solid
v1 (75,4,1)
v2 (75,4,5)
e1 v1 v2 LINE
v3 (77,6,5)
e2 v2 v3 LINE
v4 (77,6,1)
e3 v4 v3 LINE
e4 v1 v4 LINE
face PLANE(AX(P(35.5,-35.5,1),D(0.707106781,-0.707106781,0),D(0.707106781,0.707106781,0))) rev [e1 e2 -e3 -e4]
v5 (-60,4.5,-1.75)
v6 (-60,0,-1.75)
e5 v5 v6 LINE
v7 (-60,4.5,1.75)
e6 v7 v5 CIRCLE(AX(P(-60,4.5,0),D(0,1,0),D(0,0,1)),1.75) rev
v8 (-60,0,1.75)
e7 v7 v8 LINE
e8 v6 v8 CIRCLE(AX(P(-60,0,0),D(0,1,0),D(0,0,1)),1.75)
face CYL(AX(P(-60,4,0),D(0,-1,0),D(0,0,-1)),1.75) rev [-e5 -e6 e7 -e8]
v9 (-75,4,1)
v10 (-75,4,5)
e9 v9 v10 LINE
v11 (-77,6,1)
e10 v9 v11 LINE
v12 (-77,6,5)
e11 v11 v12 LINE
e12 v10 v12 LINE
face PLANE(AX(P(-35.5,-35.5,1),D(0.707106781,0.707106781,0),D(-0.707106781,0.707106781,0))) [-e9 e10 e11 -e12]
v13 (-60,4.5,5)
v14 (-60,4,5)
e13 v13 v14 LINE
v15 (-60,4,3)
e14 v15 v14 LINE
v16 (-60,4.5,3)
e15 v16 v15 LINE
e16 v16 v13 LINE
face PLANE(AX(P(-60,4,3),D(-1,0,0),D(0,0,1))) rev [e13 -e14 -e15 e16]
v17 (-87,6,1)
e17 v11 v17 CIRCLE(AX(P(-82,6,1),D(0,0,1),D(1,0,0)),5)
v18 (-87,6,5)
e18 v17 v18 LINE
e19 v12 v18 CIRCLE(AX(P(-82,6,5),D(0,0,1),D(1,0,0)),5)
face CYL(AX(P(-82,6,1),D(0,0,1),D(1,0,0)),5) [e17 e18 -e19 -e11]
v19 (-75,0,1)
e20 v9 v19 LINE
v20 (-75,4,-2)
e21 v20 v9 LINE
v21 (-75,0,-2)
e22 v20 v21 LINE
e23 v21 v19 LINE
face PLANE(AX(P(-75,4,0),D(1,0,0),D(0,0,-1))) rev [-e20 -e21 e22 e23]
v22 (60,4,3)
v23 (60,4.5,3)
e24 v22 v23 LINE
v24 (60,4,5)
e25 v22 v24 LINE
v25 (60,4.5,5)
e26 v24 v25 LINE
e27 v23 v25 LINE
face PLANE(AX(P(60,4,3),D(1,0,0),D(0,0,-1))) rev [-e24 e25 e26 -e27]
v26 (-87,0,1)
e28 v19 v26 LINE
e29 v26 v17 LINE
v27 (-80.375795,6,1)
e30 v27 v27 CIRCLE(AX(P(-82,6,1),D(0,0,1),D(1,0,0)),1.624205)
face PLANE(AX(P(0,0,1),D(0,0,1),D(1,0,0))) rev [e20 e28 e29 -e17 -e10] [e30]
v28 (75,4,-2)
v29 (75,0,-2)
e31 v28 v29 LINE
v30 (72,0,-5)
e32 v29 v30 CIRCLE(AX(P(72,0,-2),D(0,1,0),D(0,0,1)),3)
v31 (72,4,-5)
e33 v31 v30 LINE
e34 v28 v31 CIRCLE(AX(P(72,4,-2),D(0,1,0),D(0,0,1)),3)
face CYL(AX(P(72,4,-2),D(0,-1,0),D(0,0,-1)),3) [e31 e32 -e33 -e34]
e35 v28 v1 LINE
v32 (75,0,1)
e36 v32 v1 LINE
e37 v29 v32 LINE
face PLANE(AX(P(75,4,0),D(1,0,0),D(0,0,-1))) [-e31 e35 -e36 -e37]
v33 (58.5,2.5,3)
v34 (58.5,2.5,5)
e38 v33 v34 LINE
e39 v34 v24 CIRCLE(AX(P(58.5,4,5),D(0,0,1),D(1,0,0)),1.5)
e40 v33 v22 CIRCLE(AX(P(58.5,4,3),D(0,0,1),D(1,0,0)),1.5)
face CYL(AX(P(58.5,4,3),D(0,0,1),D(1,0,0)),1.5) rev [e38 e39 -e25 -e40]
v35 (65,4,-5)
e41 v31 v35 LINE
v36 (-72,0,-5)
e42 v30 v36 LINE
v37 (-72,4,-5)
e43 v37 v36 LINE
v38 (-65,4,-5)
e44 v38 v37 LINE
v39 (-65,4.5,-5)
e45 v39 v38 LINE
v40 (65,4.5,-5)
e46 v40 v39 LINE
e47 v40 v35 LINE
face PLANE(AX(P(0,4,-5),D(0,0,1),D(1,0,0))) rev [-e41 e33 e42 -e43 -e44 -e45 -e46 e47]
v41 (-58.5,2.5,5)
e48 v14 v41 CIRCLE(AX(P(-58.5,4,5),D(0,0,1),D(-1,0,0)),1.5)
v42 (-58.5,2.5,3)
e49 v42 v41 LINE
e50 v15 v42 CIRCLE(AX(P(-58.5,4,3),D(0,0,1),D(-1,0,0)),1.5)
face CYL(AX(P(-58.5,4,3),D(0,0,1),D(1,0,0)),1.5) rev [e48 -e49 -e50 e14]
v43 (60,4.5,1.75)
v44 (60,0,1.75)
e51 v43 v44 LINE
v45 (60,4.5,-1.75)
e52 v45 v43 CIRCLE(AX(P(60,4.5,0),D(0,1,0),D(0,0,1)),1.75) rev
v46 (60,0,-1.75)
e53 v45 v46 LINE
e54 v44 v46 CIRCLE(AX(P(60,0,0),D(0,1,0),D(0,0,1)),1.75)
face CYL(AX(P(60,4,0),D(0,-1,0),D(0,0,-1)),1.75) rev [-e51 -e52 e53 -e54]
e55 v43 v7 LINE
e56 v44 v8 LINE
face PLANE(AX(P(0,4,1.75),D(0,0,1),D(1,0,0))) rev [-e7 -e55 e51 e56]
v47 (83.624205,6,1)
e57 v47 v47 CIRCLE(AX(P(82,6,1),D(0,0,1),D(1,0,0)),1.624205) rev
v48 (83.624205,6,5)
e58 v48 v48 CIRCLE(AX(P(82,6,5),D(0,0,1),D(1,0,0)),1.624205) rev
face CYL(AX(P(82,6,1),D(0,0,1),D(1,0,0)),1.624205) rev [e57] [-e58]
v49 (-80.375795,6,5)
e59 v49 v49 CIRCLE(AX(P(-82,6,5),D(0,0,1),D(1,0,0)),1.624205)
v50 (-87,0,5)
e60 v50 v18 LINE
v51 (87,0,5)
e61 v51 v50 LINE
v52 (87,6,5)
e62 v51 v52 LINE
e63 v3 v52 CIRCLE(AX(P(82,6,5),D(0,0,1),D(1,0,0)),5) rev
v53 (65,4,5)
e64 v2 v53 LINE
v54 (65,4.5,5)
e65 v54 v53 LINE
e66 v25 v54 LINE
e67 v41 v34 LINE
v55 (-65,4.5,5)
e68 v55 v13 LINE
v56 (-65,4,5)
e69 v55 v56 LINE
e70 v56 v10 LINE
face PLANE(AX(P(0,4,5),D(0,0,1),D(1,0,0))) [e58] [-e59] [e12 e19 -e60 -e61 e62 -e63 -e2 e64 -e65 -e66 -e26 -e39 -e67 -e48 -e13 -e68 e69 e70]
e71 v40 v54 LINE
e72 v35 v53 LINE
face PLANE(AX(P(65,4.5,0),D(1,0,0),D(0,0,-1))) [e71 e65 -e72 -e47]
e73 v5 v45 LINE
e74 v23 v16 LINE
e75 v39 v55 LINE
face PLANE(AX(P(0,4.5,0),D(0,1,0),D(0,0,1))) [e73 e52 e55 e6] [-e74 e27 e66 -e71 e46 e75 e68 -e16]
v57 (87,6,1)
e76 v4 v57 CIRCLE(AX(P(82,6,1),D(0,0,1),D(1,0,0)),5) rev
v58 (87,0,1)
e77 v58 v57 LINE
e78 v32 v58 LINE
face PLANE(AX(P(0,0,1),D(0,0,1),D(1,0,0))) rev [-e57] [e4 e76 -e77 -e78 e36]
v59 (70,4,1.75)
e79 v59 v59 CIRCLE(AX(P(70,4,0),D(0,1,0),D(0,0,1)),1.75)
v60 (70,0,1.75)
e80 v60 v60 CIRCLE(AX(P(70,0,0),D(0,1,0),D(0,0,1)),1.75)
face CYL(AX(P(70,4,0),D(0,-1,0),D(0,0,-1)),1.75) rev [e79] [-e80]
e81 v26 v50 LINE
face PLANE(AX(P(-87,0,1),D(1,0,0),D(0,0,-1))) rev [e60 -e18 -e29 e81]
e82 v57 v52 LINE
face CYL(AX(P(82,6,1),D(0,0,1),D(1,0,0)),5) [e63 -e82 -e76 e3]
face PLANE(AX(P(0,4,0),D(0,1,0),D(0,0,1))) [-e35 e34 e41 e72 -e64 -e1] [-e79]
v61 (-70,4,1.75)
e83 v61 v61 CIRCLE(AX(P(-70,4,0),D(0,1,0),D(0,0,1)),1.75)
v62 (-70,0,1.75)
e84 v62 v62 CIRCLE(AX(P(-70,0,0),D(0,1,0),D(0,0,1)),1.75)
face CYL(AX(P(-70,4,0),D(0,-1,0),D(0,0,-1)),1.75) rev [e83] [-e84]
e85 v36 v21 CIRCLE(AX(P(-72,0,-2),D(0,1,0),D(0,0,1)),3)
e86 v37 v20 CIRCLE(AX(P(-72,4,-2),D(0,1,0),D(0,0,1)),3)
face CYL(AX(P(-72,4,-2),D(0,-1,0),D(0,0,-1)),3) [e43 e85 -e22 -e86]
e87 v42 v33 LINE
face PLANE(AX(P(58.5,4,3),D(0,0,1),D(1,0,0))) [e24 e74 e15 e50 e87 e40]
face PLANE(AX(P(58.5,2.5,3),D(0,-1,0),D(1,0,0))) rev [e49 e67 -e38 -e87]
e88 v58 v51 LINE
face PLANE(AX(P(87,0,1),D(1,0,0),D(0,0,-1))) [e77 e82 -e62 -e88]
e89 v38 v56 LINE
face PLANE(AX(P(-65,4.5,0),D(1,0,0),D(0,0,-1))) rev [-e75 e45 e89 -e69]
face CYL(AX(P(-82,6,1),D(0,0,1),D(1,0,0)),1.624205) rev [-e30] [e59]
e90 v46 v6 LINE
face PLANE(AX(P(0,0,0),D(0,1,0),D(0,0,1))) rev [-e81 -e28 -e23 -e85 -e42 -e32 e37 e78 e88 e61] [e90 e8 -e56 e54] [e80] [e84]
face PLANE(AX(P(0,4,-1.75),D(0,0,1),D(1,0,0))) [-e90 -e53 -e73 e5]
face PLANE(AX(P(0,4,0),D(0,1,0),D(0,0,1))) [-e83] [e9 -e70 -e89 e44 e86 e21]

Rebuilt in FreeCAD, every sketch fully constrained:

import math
import FreeCAD as App
import Part
import Sketcher
from FreeCAD import Vector
Q = App.Units.Quantity


def add_polygon(sketch, points):
    """Adds a closed chain of lines whose ends are joined by coincident constraints."""
    first, n = sketch.GeometryCount, len(points)
    for a, b in zip(points, points[1:] + points[:1]):
        sketch.addGeometry(Part.LineSegment(App.Vector(*a, 0), App.Vector(*b, 0)), False)
    for i in range(n):
        sketch.addConstraint(Sketcher.Constraint("Coincident", first + i, 2, first + (i + 1) % n, 1))

doc = App.newDocument("Part")
params = doc.addObject("Spreadsheet::Sheet", "Params")
for row, (alias, value) in enumerate([
    ("sketch1_radius", "3 mm"),
    ("sketch1_diameter", "3.5 mm"),
    ("sketch1_width", "144 mm"),
    ("sketch1_width2", "120 mm"),
    ("sketch1_height", "7 mm"),
    ("pad1_length", "4 mm"),
    ("sketch2_width", "130 mm"),
    ("sketch2_width2", "120 mm"),
    ("sketch2_height", "10 mm"),
    ("sketch2_radius", "1.75 mm"),
    ("pad2_length", "0.5 mm"),
    ("sketch3_radius", "1.5 mm"),
    ("sketch3_width", "117 mm"),
    ("sketch3_height", "0.5 mm"),
    ("pocket1_length", "2 mm"),
    ("sketch4_radius", "5 mm"),
    ("sketch4_width", "12 mm"),
    ("sketch4_height", "6 mm"),
    ("pad3_length", "4 mm"),
], start=1):
    params.set(f"A{row}", alias)
    params.set(f"B{row}", "=" + value)
    params.setAlias(f"B{row}", alias)

body = doc.addObject("PartDesign::Body", "Body")

# Sketch on XZ plane
sketch1 = doc.addObject("Sketcher::SketchObject", "Sketch")
body.addObject(sketch1)
sketch1.AttachmentSupport = (doc.XZ_Plane, [""])
sketch1.MapMode = "FlatFace"
sketch1.addGeometry([
    Part.ArcOfCircle(Part.Circle(Vector(72, -2, 0), Vector(0, 0, 1), 3), math.radians(-90), math.radians(0)),  # 0
    Part.LineSegment(Vector(72, -5, 0), Vector(-72, -5, 0)),  # 1
    Part.ArcOfCircle(Part.Circle(Vector(-72, -2, 0), Vector(0, 0, 1), 3), math.radians(180), math.radians(270)),  # 2
    Part.LineSegment(Vector(-75, -2, 0), Vector(-75, 5, 0)),  # 3
    Part.LineSegment(Vector(-75, 5, 0), Vector(75, 5, 0)),  # 4
    Part.LineSegment(Vector(75, 5, 0), Vector(75, -2, 0)),  # 5
    Part.Circle(Vector(-70, 0, 0), Vector(0, 0, 1), 1.75),  # 6
    Part.ArcOfCircle(Part.Circle(Vector(60, 0, 0), Vector(0, 0, 1), 1.75), math.radians(-90), math.radians(0)),  # 7
    Part.ArcOfCircle(Part.Circle(Vector(60, 0, 0), Vector(0, 0, 1), 1.75), math.radians(0), math.radians(90)),  # 8
    Part.LineSegment(Vector(60, 1.75, 0), Vector(-60, 1.75, 0)),  # 9
    Part.ArcOfCircle(Part.Circle(Vector(-60, 0, 0), Vector(0, 0, 1), 1.75), math.radians(90), math.radians(270)),  # 10
    Part.LineSegment(Vector(-60, -1.75, 0), Vector(60, -1.75, 0)),  # 11
    Part.Circle(Vector(70, 0, 0), Vector(0, 0, 1), 1.75),  # 12
], False)
sketch1.addConstraint([
    Sketcher.Constraint("Tangent", 0, 1, 1, 1),
    Sketcher.Constraint("Tangent", 1, 2, 2, 2),
    Sketcher.Constraint("Tangent", 2, 1, 3, 1),
    Sketcher.Constraint("Coincident", 3, 2, 4, 1),
    Sketcher.Constraint("Coincident", 4, 2, 5, 1),
    Sketcher.Constraint("Tangent", 5, 2, 0, 2),
    Sketcher.Constraint("Tangent", 7, 2, 8, 1),
    Sketcher.Constraint("Tangent", 8, 2, 9, 1),
    Sketcher.Constraint("Tangent", 9, 2, 10, 1),
    Sketcher.Constraint("Tangent", 10, 2, 11, 1),
    Sketcher.Constraint("Tangent", 11, 2, 7, 1),
    Sketcher.Constraint("Horizontal", 1),
    Sketcher.Constraint("Vertical", 3),
    Sketcher.Constraint("Horizontal", 4),
    Sketcher.Constraint("Vertical", 5),
    Sketcher.Constraint("Horizontal", 9),
    Sketcher.Constraint("Horizontal", 11),
    Sketcher.Constraint("Equal", 0, 2),
    Sketcher.Constraint("Equal", 6, 7),
    Sketcher.Constraint("Equal", 7, 8),
    Sketcher.Constraint("Equal", 10, 12),
    Sketcher.Constraint("Symmetric", 7, 3, 10, 3, -1, 1),
    Sketcher.Constraint("Symmetric", 6, 3, 12, 3, -1, 1),
    Sketcher.Constraint("PointOnObject", 6, 3, -1),
    Sketcher.Constraint("PointOnObject", 7, 2, -1),
    Sketcher.Constraint("Radius", 0, Q("3 mm")),
    Sketcher.Constraint("Diameter", 6, Q("3.5 mm")),
    Sketcher.Constraint("DistanceX", 1, 2, 1, 1, Q("144 mm")),
    Sketcher.Constraint("DistanceX", 9, 2, 9, 1, Q("120 mm")),
    Sketcher.Constraint("DistanceY", 3, 1, 3, 2, Q("7 mm")),
    Sketcher.Constraint("DistanceX", -1, 1, 0, 3, Q("72 mm")),
    Sketcher.Constraint("DistanceY", 0, 3, -1, 1, Q("2 mm")),
    Sketcher.Constraint("DistanceX", 6, 3, -1, 1, Q("70 mm")),
])
sketch1.setExpression("Constraints[25]", "Params.sketch1_radius")
sketch1.setExpression("Constraints[26]", "Params.sketch1_diameter")
sketch1.setExpression("Constraints[27]", "Params.sketch1_width")
sketch1.setExpression("Constraints[28]", "Params.sketch1_width2")
sketch1.setExpression("Constraints[29]", "Params.sketch1_height")
pad1 = doc.addObject("PartDesign::Pad", "Pad")
body.addObject(pad1)
pad1.Profile = sketch1
pad1.setExpression("Length", "Params.pad1_length")
pad1.Reversed = True

# Sketch on XZ plane
sketch2 = doc.addObject("Sketcher::SketchObject", "Sketch001")
body.addObject(sketch2)
sketch2.AttachmentSupport = (doc.XZ_Plane, [""])
sketch2.MapMode = "FlatFace"
sketch2.AttachmentOffset = App.Placement(Vector(0, 0, -4), App.Rotation())
add_polygon(sketch2, [(-65, -5), (-65, 5), (65, 5), (65, -5)])  # lines 0-3
sketch2.addGeometry(Part.ArcOfCircle(Part.Circle(Vector(-60, 0, 0), Vector(0, 0, 1), 1.75), math.radians(90), math.radians(270)), False)  # 4
sketch2.addGeometry(Part.LineSegment(Vector(-60, -1.75, 0), Vector(60, -1.75, 0)), False)  # 5
sketch2.addGeometry(Part.ArcOfCircle(Part.Circle(Vector(60, 0, 0), Vector(0, 0, 1), 1.75), math.radians(-90), math.radians(90)), False)  # 6
sketch2.addGeometry(Part.LineSegment(Vector(60, 1.75, 0), Vector(-60, 1.75, 0)), False)  # 7
sketch2.addConstraint([
    Sketcher.Constraint("Tangent", 4, 2, 5, 1),
    Sketcher.Constraint("Tangent", 5, 2, 6, 1),
    Sketcher.Constraint("Tangent", 6, 2, 7, 1),
    Sketcher.Constraint("Tangent", 7, 2, 4, 1),
    Sketcher.Constraint("Vertical", 0),
    Sketcher.Constraint("Horizontal", 1),
    Sketcher.Constraint("Vertical", 2),
    Sketcher.Constraint("Horizontal", 3),
    Sketcher.Constraint("Horizontal", 5),
    Sketcher.Constraint("Horizontal", 7),
    Sketcher.Constraint("Symmetric", 4, 3, 6, 3, -1, 1),
    Sketcher.Constraint("Symmetric", 0, 2, 2, 2, -1, 1),
    Sketcher.Constraint("DistanceX", 1, 1, 1, 2, Q("130 mm")),
    Sketcher.Constraint("DistanceX", 5, 1, 5, 2, Q("120 mm")),
    Sketcher.Constraint("DistanceY", 0, 1, 0, 2, Q("10 mm")),
    Sketcher.Constraint("Radius", 4, Q("1.75 mm")),
])
sketch2.setExpression("Constraints[16]", "Params.sketch2_width")
sketch2.setExpression("Constraints[17]", "Params.sketch2_width2")
sketch2.setExpression("Constraints[18]", "Params.sketch2_height")
sketch2.setExpression("Constraints[19]", "Params.sketch2_radius")
pad2 = doc.addObject("PartDesign::Pad", "Pad001")
body.addObject(pad2)
pad2.Profile = sketch2
pad2.setExpression("Length", "Params.pad2_length")
pad2.Reversed = True

# Sketch on XY plane
sketch3 = doc.addObject("Sketcher::SketchObject", "Sketch002")
body.addObject(sketch3)
sketch3.AttachmentSupport = (doc.XY_Plane, [""])
sketch3.MapMode = "FlatFace"
sketch3.AttachmentOffset = App.Placement(Vector(0, 0, 5), App.Rotation())
sketch3.addGeometry([
    Part.LineSegment(Vector(-58.5, 2.5, 0), Vector(58.5, 2.5, 0)),  # 0
    Part.ArcOfCircle(Part.Circle(Vector(58.5, 4, 0), Vector(0, 0, 1), 1.5), math.radians(-90), math.radians(0)),  # 1
    Part.LineSegment(Vector(60, 4, 0), Vector(60, 4.5, 0)),  # 2
    Part.LineSegment(Vector(60, 4.5, 0), Vector(-60, 4.5, 0)),  # 3
    Part.LineSegment(Vector(-60, 4.5, 0), Vector(-60, 4, 0)),  # 4
    Part.ArcOfCircle(Part.Circle(Vector(-58.5, 4, 0), Vector(0, 0, 1), 1.5), math.radians(180), math.radians(270)),  # 5
], False)
sketch3.addConstraint([
    Sketcher.Constraint("Tangent", 0, 2, 1, 1),
    Sketcher.Constraint("Tangent", 1, 2, 2, 1),
    Sketcher.Constraint("Coincident", 2, 2, 3, 1),
    Sketcher.Constraint("Coincident", 3, 2, 4, 1),
    Sketcher.Constraint("Tangent", 4, 2, 5, 1),
    Sketcher.Constraint("Tangent", 5, 2, 0, 1),
    Sketcher.Constraint("Horizontal", 0),
    Sketcher.Constraint("Vertical", 2),
    Sketcher.Constraint("Horizontal", 3),
    Sketcher.Constraint("Vertical", 4),
    Sketcher.Constraint("Equal", 1, 5),
    Sketcher.Constraint("Radius", 1, Q("1.5 mm")),
    Sketcher.Constraint("DistanceX", 0, 1, 0, 2, Q("117 mm")),
    Sketcher.Constraint("DistanceY", 2, 1, 2, 2, Q("0.5 mm")),
    Sketcher.Constraint("DistanceY", -1, 1, 1, 3, Q("4 mm")),
    Sketcher.Constraint("DistanceX", -1, 1, 1, 2, Q("60 mm")),
])
sketch3.setExpression("Constraints[11]", "Params.sketch3_radius")
sketch3.setExpression("Constraints[12]", "Params.sketch3_width")
sketch3.setExpression("Constraints[13]", "Params.sketch3_height")
pocket1 = doc.addObject("PartDesign::Pocket", "Pocket")
body.addObject(pocket1)
pocket1.Profile = sketch3
pocket1.setExpression("Length", "Params.pocket1_length")

# Sketch on XY plane
sketch4 = doc.addObject("Sketcher::SketchObject", "Sketch003")
body.addObject(sketch4)
sketch4.AttachmentSupport = (doc.XY_Plane, [""])
sketch4.MapMode = "FlatFace"
sketch4.AttachmentOffset = App.Placement(Vector(0, 0, 5), App.Rotation())
sketch4.addGeometry([
    Part.LineSegment(Vector(-75, 4, 0), Vector(-77, 6, 0)),  # 0
    Part.ArcOfCircle(Part.Circle(Vector(-82, 6, 0), Vector(0, 0, 1), 5), math.radians(0), math.radians(180)),  # 1
    Part.LineSegment(Vector(-87, 6, 0), Vector(-87, 0, 0)),  # 2
    Part.LineSegment(Vector(-87, 0, 0), Vector(-75, 0, 0)),  # 3
    Part.LineSegment(Vector(-75, 0, 0), Vector(-75, 4, 0)),  # 4
    Part.Circle(Vector(-82, 6, 0), Vector(0, 0, 1), 1.624205),  # 5
    Part.ArcOfCircle(Part.Circle(Vector(82, 6, 0), Vector(0, 0, 1), 5), math.radians(0), math.radians(180)),  # 6
    Part.LineSegment(Vector(77, 6, 0), Vector(75, 4, 0)),  # 7
    Part.LineSegment(Vector(75, 4, 0), Vector(75, 0, 0)),  # 8
    Part.LineSegment(Vector(75, 0, 0), Vector(87, 0, 0)),  # 9
    Part.LineSegment(Vector(87, 0, 0), Vector(87, 6, 0)),  # 10
    Part.Circle(Vector(82, 6, 0), Vector(0, 0, 1), 1.624205),  # 11
], False)
sketch4.addConstraint([
    Sketcher.Constraint("Coincident", 0, 2, 1, 1),
    Sketcher.Constraint("Tangent", 1, 2, 2, 1),
    Sketcher.Constraint("Coincident", 2, 2, 3, 1),
    Sketcher.Constraint("Coincident", 3, 2, 4, 1),
    Sketcher.Constraint("Coincident", 4, 2, 0, 1),
    Sketcher.Constraint("Coincident", 6, 2, 7, 1),
    Sketcher.Constraint("Coincident", 7, 2, 8, 1),
    Sketcher.Constraint("Coincident", 8, 2, 9, 1),
    Sketcher.Constraint("Coincident", 9, 2, 10, 1),
    Sketcher.Constraint("Tangent", 10, 2, 6, 1),
    Sketcher.Constraint("Vertical", 2),
    Sketcher.Constraint("Horizontal", 3),
    Sketcher.Constraint("Vertical", 4),
    Sketcher.Constraint("Vertical", 8),
    Sketcher.Constraint("Horizontal", 9),
    Sketcher.Constraint("Vertical", 10),
    Sketcher.Constraint("Coincident", 5, 3, 1, 3),
    Sketcher.Constraint("Coincident", 11, 3, 6, 3),
    Sketcher.Constraint("Equal", 1, 6),
    Sketcher.Constraint("Equal", 5, 11),
    Sketcher.Constraint("Symmetric", 3, 2, 8, 2, -1, 1),
    Sketcher.Constraint("Symmetric", 1, 3, 6, 3, -2),
    Sketcher.Constraint("PointOnObject", 2, 2, -1),
    Sketcher.Constraint("Perpendicular", 0, 7),
    Sketcher.Constraint("Horizontal", 11, 3, 0, 2),
    Sketcher.Constraint("Horizontal", 1, 2, 6, 2),
    Sketcher.Constraint("Horizontal", 4, 2, 7, 2),
    Sketcher.Constraint("Radius", 1, Q("5 mm")),
    Sketcher.Constraint("DistanceX", 3, 1, 3, 2, Q("12 mm")),
    Sketcher.Constraint("DistanceY", 2, 2, 2, 1, Q("6 mm")),
    Sketcher.Constraint("DistanceX", 1, 3, -1, 1, Q("82 mm")),
    Sketcher.Constraint("Diameter", 5, Q("3.24841 mm")),
])
sketch4.setExpression("Constraints[27]", "Params.sketch4_radius")
sketch4.setExpression("Constraints[28]", "Params.sketch4_width")
sketch4.setExpression("Constraints[29]", "Params.sketch4_height")
pad3 = doc.addObject("PartDesign::Pad", "Pad002")
body.addObject(pad3)
pad3.Profile = sketch4
pad3.setExpression("Length", "Params.pad3_length")
pad3.Reversed = True

doc.recompute()
